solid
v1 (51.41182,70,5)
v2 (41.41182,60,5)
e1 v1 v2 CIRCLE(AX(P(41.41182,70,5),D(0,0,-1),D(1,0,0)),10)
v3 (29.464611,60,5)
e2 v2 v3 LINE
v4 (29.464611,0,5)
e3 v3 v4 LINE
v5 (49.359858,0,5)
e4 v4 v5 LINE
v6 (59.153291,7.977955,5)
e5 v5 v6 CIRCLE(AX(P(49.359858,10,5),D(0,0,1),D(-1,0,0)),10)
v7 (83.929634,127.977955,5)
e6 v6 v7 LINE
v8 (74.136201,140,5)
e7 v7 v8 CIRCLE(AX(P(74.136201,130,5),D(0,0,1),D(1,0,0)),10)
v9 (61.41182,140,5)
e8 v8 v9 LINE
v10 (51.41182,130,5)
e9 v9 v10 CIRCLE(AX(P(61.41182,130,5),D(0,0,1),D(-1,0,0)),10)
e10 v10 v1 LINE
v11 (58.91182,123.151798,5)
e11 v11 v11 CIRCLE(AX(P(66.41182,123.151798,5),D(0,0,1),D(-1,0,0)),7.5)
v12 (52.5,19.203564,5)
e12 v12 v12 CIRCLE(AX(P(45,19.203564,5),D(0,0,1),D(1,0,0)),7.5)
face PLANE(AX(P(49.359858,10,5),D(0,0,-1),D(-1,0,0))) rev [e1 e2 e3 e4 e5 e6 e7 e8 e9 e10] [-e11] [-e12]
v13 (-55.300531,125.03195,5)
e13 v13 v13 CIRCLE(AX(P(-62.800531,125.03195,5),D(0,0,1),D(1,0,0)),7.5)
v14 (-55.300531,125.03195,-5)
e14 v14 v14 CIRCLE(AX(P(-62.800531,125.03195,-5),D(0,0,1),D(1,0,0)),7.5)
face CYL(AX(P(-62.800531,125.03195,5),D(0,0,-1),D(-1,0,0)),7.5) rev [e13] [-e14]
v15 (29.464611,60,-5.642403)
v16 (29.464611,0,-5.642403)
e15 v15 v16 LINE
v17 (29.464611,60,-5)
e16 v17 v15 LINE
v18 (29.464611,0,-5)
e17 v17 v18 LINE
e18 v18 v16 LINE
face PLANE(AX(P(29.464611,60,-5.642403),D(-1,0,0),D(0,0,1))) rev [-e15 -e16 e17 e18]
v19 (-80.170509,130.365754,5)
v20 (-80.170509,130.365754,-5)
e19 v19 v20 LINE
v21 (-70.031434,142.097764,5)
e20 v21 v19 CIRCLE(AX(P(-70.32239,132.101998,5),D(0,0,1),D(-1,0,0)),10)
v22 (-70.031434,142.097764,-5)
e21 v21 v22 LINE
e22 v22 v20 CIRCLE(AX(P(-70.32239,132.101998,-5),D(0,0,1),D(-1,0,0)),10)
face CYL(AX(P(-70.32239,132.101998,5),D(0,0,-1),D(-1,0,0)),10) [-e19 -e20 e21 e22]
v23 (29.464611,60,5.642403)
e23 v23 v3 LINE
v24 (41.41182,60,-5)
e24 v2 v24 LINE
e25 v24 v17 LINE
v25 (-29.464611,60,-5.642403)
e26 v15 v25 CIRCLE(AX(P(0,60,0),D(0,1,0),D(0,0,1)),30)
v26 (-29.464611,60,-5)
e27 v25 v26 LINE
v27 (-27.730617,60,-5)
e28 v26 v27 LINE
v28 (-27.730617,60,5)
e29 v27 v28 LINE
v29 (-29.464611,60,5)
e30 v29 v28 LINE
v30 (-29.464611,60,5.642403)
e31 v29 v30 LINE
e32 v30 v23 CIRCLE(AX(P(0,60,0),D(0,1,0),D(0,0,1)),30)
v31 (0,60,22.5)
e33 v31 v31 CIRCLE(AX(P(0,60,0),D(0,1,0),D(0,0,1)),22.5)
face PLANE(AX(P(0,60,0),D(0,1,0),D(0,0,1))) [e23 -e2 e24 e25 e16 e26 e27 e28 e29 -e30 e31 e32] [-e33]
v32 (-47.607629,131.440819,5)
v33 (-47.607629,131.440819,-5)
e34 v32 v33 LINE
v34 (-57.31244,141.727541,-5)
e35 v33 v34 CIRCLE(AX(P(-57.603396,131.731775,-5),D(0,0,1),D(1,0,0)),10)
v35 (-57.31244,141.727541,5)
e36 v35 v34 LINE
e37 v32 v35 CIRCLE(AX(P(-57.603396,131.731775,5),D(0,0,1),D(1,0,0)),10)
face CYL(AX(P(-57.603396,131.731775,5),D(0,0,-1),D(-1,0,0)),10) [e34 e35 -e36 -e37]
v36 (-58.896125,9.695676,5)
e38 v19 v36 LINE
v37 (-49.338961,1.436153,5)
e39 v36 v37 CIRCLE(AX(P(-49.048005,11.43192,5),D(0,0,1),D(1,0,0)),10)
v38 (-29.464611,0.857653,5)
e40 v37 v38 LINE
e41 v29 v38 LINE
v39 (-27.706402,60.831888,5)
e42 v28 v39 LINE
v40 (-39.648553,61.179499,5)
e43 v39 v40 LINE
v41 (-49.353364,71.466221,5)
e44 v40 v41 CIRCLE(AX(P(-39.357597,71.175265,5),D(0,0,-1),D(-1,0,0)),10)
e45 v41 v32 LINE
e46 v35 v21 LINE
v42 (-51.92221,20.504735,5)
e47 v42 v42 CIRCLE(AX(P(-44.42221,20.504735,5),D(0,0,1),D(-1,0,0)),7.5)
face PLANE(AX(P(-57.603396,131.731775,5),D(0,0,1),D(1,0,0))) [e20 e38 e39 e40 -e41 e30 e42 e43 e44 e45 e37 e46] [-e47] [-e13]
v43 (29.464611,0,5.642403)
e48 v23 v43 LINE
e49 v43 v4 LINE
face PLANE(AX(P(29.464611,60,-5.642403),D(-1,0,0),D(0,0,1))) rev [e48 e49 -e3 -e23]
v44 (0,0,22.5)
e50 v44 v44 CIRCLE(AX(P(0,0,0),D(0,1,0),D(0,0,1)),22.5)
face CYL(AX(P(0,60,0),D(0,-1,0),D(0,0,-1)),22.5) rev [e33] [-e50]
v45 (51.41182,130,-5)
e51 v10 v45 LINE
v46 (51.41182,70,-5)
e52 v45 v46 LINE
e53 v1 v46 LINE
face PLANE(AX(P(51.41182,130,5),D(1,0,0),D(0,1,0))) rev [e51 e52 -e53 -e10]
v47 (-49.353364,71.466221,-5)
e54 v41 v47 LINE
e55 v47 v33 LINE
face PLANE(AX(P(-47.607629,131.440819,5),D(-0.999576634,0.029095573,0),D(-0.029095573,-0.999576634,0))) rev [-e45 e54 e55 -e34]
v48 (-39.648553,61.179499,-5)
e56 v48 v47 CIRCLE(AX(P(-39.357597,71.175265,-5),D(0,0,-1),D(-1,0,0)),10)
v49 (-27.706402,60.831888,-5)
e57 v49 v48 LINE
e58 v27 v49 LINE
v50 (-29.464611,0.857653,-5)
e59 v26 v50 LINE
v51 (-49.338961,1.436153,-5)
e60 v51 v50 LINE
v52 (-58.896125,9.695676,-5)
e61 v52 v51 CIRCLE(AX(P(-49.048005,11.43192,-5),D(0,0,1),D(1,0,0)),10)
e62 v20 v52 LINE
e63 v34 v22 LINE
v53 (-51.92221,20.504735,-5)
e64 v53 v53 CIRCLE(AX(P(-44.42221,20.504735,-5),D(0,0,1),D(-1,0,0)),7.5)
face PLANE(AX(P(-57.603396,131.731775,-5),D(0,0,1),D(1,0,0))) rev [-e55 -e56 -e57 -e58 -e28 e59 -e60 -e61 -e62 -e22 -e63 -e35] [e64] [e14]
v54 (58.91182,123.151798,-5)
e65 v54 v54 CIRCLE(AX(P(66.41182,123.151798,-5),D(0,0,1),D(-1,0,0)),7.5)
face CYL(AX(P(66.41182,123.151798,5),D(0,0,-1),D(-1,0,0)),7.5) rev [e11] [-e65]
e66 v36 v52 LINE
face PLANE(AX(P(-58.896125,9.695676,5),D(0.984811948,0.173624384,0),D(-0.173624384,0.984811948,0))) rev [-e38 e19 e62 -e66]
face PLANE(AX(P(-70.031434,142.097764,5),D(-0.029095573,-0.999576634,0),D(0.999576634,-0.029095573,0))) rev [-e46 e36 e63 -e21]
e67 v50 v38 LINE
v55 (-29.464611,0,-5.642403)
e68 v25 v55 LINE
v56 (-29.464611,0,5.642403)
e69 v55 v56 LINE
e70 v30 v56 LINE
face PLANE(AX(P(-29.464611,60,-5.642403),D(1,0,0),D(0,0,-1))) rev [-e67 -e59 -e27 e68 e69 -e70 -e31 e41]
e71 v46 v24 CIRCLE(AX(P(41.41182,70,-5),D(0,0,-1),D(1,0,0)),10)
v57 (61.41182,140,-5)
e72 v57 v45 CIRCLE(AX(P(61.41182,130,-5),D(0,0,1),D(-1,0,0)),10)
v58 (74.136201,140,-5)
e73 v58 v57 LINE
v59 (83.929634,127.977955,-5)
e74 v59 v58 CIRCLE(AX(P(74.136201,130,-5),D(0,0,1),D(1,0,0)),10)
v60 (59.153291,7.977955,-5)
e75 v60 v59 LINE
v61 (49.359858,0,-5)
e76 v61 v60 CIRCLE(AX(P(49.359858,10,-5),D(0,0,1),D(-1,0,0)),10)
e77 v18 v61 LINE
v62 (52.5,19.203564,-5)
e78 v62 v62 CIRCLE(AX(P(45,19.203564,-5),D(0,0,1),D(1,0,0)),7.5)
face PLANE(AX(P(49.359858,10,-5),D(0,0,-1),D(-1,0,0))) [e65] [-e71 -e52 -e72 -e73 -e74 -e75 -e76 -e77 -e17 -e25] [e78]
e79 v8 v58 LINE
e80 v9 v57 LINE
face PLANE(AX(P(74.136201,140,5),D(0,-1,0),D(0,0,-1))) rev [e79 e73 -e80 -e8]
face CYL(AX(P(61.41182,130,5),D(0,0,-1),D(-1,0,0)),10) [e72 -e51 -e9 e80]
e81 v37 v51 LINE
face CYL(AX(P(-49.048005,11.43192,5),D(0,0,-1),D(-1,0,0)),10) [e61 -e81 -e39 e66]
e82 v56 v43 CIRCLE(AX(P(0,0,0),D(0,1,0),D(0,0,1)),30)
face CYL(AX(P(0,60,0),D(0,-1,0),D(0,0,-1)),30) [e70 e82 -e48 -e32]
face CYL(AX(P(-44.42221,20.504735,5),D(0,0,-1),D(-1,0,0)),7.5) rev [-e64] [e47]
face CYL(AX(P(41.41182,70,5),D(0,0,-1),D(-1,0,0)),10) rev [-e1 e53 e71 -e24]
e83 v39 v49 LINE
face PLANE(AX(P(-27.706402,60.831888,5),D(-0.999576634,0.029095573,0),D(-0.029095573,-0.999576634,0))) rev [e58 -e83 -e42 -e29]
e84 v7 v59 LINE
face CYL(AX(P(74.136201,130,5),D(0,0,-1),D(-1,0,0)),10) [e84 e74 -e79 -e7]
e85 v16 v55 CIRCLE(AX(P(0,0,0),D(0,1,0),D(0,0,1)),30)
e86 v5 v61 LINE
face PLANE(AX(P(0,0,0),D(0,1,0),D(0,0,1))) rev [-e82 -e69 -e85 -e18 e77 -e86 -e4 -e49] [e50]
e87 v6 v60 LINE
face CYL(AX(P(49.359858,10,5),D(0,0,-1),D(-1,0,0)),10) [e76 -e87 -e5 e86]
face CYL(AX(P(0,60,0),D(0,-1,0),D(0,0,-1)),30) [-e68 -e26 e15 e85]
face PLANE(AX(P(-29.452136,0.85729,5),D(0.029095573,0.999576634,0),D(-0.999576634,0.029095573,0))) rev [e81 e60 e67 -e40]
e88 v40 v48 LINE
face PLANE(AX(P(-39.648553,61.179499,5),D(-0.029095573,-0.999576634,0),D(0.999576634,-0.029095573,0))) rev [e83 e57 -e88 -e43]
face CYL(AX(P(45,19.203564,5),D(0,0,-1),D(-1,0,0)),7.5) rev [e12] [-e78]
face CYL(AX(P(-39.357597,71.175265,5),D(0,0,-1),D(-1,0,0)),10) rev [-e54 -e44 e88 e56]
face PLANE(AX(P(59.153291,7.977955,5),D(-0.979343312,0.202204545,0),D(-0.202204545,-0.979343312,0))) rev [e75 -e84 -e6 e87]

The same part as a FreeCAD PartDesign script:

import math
import FreeCAD as App
import Part
import Sketcher

V = App.Vector
Q = App.Units.Quantity

doc = App.newDocument("Part")
body = doc.addObject("PartDesign::Body", "Body")

# Sketch on XZ plane
sketch1 = doc.addObject("Sketcher::SketchObject", "Sketch")
body.addObject(sketch1)
sketch1.AttachmentSupport = (doc.XZ_Plane, [""])
sketch1.MapMode = "FlatFace"
sketch1.addGeometry([
    Part.LineSegment(V(-29.464611, -5.642403, 0), V(-29.464611, 5.642403, 0)),  # 0
    Part.ArcOfCircle(Part.Circle(V(0, 0, 0), V(0, 0, 1), 30), math.radians(10.840762), math.radians(169.159238)),  # 1
    Part.LineSegment(V(29.464611, 5.642403, 0), V(29.464611, -5.642403, 0)),  # 2
    Part.ArcOfCircle(Part.Circle(V(0, 0, 0), V(0, 0, 1), 30), math.radians(-169.159238), math.radians(-10.840762)),  # 3
    Part.Circle(V(0, 0, 0), V(0, 0, 1), 22.5),  # 4
], False)
sketch1.addConstraint([
    Sketcher.Constraint("Coincident", 0, 2, 1, 2),
    Sketcher.Constraint("Coincident", 1, 1, 2, 1),
    Sketcher.Constraint("Coincident", 2, 2, 3, 2),
    Sketcher.Constraint("Coincident", 3, 1, 0, 1),
    Sketcher.Constraint("Vertical", 0),
    Sketcher.Constraint("Vertical", 2),
    Sketcher.Constraint("Coincident", 1, 3, -1, 1),
    Sketcher.Constraint("Coincident", 3, 3, -1, 1),
    Sketcher.Constraint("Coincident", 4, 3, -1, 1),
    Sketcher.Constraint("Equal", 1, 3),
    Sketcher.Constraint("Horizontal", 0, 2, 1, 1),
    Sketcher.Constraint("Diameter", 4, Q("45 mm")),
    Sketcher.Constraint("Radius", 1, Q("30 mm")),
    Sketcher.Constraint("DistanceY", 0, 1, 0, 2, Q("11.284806 mm")),
])
pad1 = doc.addObject("PartDesign::Pad", "Pad")
body.addObject(pad1)
pad1.Profile = sketch1
pad1.Length = 60
pad1.Reversed = True

# Sketch on XY plane
sketch2 = doc.addObject("Sketcher::SketchObject", "Sketch001")
body.addObject(sketch2)
sketch2.AttachmentSupport = (doc.XY_Plane, [""])
sketch2.MapMode = "FlatFace"
sketch2.addGeometry([
    Part.LineSegment(V(29.464611, 60, 0), V(29.464611, 0, 0)),  # 0
    Part.LineSegment(V(29.464611, 0, 0), V(49.359858, 0, 0)),  # 1
    Part.ArcOfCircle(Part.Circle(V(49.359858, 10, 0), V(0, 0, 1), 10), math.radians(-90), math.radians(-11.665905)),  # 2
    Part.LineSegment(V(59.153291, 7.977955, 0), V(83.929634, 127.977955, 0)),  # 3
    Part.ArcOfCircle(Part.Circle(V(74.136201, 130, 0), V(0, 0, 1), 10), math.radians(-11.665905), math.radians(90)),  # 4
    Part.LineSegment(V(74.136201, 140, 0), V(61.41182, 140, 0)),  # 5
    Part.ArcOfCircle(Part.Circle(V(61.41182, 130, 0), V(0, 0, 1), 10), math.radians(90), math.radians(180)),  # 6
    Part.LineSegment(V(51.41182, 130, 0), V(51.41182, 70, 0)),  # 7
    Part.ArcOfCircle(Part.Circle(V(41.41182, 70, 0), V(0, 0, 1), 10), math.radians(-90), math.radians(0)),  # 8
    Part.LineSegment(V(41.41182, 60, 0), V(29.464611, 60, 0)),  # 9
    Part.Circle(V(45, 19.203564, 0), V(0, 0, 1), 7.5),  # 10
    Part.Circle(V(66.41182, 123.151798, 0), V(0, 0, 1), 7.5),  # 11
    Part.LineSegment(V(-27.706402, 60.831888, 0), V(-39.648553, 61.179499, 0)),  # 12
    Part.ArcOfCircle(Part.Circle(V(-39.357597, 71.175265, 0), V(0, 0, 1), 10), math.radians(178.332711), math.radians(268.332711)),  # 13
    Part.LineSegment(V(-49.353364, 71.466221, 0), V(-47.607629, 131.440819, 0)),  # 14
    Part.ArcOfCircle(Part.Circle(V(-57.603396, 131.731775, 0), V(0, 0, 1), 10), math.radians(-1.667289), math.radians(88.332711)),  # 15
    Part.LineSegment(V(-57.31244, 141.727541, 0), V(-70.031434, 142.097764, 0)),  # 16
    Part.ArcOfCircle(Part.Circle(V(-70.32239, 132.101998, 0), V(0, 0, 1), 10), math.radians(88.332711), math.radians(189.998616)),  # 17
    Part.LineSegment(V(-80.170509, 130.365754, 0), V(-58.896125, 9.695676, 0)),  # 18
    Part.ArcOfCircle(Part.Circle(V(-49.048005, 11.43192, 0), V(0, 0, 1), 10), math.radians(-170.001384), math.radians(-91.667289)),  # 19
    Part.LineSegment(V(-49.338961, 1.436153, 0), V(-29.452136, 0.85729, 0)),  # 20
    Part.LineSegment(V(-29.452136, 0.85729, 0), V(-27.706402, 60.831888, 0)),  # 21
    Part.Circle(V(-44.42221, 20.504735, 0), V(0, 0, 1), 7.5),  # 22
    Part.Circle(V(-62.800531, 125.03195, 0), V(0, 0, 1), 7.5),  # 23
], False)
sketch2.addConstraint([
    Sketcher.Constraint("Coincident", 0, 2, 1, 1),
    Sketcher.Constraint("Tangent", 1, 2, 2, 1),
    Sketcher.Constraint("Tangent", 2, 2, 3, 1),
    Sketcher.Constraint("Tangent", 3, 2, 4, 1),
    Sketcher.Constraint("Tangent", 4, 2, 5, 1),
    Sketcher.Constraint("Tangent", 5, 2, 6, 1),
    Sketcher.Constraint("Tangent", 6, 2, 7, 1),
    Sketcher.Constraint("Tangent", 7, 2, 8, 2),
    Sketcher.Constraint("Tangent", 8, 1, 9, 1),
    Sketcher.Constraint("Coincident", 9, 2, 0, 1),
    Sketcher.Constraint("Tangent", 12, 2, 13, 2),
    Sketcher.Constraint("Tangent", 13, 1, 14, 1),
    Sketcher.Constraint("Tangent", 14, 2, 15, 1),
    Sketcher.Constraint("Tangent", 15, 2, 16, 1),
    Sketcher.Constraint("Tangent", 16, 2, 17, 1),
    Sketcher.Constraint("Tangent", 17, 2, 18, 1),
    Sketcher.Constraint("Tangent", 18, 2, 19, 1),
    Sketcher.Constraint("Tangent", 19, 2, 20, 1),
    Sketcher.Constraint("Coincident", 20, 2, 21, 1),
    Sketcher.Constraint("Coincident", 21, 2, 12, 1),
    Sketcher.Constraint("Vertical", 0),
    Sketcher.Constraint("Horizontal", 1),
    Sketcher.Constraint("Horizontal", 5),
    Sketcher.Constraint("Vertical", 7),
    Sketcher.Constraint("Horizontal", 9),
    Sketcher.Constraint("Equal", 2, 4),
    Sketcher.Constraint("Equal", 4, 6),
    Sketcher.Constraint("Equal", 6, 8),
    Sketcher.Constraint("Equal", 10, 11),
    Sketcher.Constraint("Equal", 8, 13),
    Sketcher.Constraint("Equal", 13, 15),
    Sketcher.Constraint("Equal", 15, 17),
    Sketcher.Constraint("Equal", 17, 19),
    Sketcher.Constraint("Equal", 11, 22),
    Sketcher.Constraint("Equal", 22, 23),
    Sketcher.Constraint("PointOnObject", 0, 2, -1),
    Sketcher.Constraint("Perpendicular", 12, 14),
    Sketcher.Constraint("Perpendicular", 14, 16),
    Sketcher.Constraint("Parallel", 16, 20),
    Sketcher.Constraint("Perpendicular", 20, 21),
    Sketcher.Constraint("Equal", 0, 7),
    Sketcher.Constraint("Equal", 3, 18),
    Sketcher.Constraint("Equal", 14, 21),
    Sketcher.Constraint("Diameter", 10, Q("15 mm")),
    Sketcher.Constraint("Radius", 2, Q("10 mm")),
    Sketcher.Constraint("DistanceY", 0, 2, 0, 1, Q("60 mm")),
    Sketcher.Constraint("Distance", 14, Q("60 mm")),
    Sketcher.Constraint("DistanceX", -1, 1, 10, 3, Q("45 mm")),
    Sketcher.Constraint("DistanceX", 6, 3, 11, 3, Q("5 mm")),
    Sketcher.Constraint("DistanceX", 5, 2, 5, 1, Q("12.724381 mm")),
    Sketcher.Constraint("DistanceX", 9, 2, 9, 1, Q("11.947209 mm")),
    Sketcher.Constraint("DistanceX", -1, 1, 4, 3, Q("74.136201 mm")),
    Sketcher.Constraint("DistanceY", -1, 1, 12, 2, Q("61.179499 mm")),
    Sketcher.Constraint("DistanceY", 10, 3, 13, 3, Q("51.971701 mm")),
    Sketcher.Constraint("DistanceX", 15, 3, 13, 3, Q("18.245798 mm")),
    Sketcher.Constraint("DistanceY", 11, 3, 17, 3, Q("8.9502 mm")),
    Sketcher.Constraint("DistanceX", 23, 3, 14, 2, Q("15.192902 mm")),
    Sketcher.Constraint("Distance", 12, Q("11.947209 mm")),
    Sketcher.Constraint("Distance", 16, Q("12.724381 mm")),
    Sketcher.Constraint("DistanceX", 1, 1, 1, 2, Q("19.895247 mm")),
    Sketcher.Constraint("DistanceX", 17, 3, -1, 1, Q("70.32239 mm")),
    Sketcher.Constraint("DistanceX", 22, 3, -1, 1, Q("44.42221 mm")),
    Sketcher.Constraint("DistanceY", -1, 1, 23, 3, Q("125.03195 mm")),
    Sketcher.Constraint("DistanceY", 22, 3, 13, 3, Q("50.67053 mm")),
])
pad2 = doc.addObject("PartDesign::Pad", "Pad001")
body.addObject(pad2)
pad2.Profile = sketch2
pad2.Length = 10
pad2.Midplane = True

doc.recompute()
